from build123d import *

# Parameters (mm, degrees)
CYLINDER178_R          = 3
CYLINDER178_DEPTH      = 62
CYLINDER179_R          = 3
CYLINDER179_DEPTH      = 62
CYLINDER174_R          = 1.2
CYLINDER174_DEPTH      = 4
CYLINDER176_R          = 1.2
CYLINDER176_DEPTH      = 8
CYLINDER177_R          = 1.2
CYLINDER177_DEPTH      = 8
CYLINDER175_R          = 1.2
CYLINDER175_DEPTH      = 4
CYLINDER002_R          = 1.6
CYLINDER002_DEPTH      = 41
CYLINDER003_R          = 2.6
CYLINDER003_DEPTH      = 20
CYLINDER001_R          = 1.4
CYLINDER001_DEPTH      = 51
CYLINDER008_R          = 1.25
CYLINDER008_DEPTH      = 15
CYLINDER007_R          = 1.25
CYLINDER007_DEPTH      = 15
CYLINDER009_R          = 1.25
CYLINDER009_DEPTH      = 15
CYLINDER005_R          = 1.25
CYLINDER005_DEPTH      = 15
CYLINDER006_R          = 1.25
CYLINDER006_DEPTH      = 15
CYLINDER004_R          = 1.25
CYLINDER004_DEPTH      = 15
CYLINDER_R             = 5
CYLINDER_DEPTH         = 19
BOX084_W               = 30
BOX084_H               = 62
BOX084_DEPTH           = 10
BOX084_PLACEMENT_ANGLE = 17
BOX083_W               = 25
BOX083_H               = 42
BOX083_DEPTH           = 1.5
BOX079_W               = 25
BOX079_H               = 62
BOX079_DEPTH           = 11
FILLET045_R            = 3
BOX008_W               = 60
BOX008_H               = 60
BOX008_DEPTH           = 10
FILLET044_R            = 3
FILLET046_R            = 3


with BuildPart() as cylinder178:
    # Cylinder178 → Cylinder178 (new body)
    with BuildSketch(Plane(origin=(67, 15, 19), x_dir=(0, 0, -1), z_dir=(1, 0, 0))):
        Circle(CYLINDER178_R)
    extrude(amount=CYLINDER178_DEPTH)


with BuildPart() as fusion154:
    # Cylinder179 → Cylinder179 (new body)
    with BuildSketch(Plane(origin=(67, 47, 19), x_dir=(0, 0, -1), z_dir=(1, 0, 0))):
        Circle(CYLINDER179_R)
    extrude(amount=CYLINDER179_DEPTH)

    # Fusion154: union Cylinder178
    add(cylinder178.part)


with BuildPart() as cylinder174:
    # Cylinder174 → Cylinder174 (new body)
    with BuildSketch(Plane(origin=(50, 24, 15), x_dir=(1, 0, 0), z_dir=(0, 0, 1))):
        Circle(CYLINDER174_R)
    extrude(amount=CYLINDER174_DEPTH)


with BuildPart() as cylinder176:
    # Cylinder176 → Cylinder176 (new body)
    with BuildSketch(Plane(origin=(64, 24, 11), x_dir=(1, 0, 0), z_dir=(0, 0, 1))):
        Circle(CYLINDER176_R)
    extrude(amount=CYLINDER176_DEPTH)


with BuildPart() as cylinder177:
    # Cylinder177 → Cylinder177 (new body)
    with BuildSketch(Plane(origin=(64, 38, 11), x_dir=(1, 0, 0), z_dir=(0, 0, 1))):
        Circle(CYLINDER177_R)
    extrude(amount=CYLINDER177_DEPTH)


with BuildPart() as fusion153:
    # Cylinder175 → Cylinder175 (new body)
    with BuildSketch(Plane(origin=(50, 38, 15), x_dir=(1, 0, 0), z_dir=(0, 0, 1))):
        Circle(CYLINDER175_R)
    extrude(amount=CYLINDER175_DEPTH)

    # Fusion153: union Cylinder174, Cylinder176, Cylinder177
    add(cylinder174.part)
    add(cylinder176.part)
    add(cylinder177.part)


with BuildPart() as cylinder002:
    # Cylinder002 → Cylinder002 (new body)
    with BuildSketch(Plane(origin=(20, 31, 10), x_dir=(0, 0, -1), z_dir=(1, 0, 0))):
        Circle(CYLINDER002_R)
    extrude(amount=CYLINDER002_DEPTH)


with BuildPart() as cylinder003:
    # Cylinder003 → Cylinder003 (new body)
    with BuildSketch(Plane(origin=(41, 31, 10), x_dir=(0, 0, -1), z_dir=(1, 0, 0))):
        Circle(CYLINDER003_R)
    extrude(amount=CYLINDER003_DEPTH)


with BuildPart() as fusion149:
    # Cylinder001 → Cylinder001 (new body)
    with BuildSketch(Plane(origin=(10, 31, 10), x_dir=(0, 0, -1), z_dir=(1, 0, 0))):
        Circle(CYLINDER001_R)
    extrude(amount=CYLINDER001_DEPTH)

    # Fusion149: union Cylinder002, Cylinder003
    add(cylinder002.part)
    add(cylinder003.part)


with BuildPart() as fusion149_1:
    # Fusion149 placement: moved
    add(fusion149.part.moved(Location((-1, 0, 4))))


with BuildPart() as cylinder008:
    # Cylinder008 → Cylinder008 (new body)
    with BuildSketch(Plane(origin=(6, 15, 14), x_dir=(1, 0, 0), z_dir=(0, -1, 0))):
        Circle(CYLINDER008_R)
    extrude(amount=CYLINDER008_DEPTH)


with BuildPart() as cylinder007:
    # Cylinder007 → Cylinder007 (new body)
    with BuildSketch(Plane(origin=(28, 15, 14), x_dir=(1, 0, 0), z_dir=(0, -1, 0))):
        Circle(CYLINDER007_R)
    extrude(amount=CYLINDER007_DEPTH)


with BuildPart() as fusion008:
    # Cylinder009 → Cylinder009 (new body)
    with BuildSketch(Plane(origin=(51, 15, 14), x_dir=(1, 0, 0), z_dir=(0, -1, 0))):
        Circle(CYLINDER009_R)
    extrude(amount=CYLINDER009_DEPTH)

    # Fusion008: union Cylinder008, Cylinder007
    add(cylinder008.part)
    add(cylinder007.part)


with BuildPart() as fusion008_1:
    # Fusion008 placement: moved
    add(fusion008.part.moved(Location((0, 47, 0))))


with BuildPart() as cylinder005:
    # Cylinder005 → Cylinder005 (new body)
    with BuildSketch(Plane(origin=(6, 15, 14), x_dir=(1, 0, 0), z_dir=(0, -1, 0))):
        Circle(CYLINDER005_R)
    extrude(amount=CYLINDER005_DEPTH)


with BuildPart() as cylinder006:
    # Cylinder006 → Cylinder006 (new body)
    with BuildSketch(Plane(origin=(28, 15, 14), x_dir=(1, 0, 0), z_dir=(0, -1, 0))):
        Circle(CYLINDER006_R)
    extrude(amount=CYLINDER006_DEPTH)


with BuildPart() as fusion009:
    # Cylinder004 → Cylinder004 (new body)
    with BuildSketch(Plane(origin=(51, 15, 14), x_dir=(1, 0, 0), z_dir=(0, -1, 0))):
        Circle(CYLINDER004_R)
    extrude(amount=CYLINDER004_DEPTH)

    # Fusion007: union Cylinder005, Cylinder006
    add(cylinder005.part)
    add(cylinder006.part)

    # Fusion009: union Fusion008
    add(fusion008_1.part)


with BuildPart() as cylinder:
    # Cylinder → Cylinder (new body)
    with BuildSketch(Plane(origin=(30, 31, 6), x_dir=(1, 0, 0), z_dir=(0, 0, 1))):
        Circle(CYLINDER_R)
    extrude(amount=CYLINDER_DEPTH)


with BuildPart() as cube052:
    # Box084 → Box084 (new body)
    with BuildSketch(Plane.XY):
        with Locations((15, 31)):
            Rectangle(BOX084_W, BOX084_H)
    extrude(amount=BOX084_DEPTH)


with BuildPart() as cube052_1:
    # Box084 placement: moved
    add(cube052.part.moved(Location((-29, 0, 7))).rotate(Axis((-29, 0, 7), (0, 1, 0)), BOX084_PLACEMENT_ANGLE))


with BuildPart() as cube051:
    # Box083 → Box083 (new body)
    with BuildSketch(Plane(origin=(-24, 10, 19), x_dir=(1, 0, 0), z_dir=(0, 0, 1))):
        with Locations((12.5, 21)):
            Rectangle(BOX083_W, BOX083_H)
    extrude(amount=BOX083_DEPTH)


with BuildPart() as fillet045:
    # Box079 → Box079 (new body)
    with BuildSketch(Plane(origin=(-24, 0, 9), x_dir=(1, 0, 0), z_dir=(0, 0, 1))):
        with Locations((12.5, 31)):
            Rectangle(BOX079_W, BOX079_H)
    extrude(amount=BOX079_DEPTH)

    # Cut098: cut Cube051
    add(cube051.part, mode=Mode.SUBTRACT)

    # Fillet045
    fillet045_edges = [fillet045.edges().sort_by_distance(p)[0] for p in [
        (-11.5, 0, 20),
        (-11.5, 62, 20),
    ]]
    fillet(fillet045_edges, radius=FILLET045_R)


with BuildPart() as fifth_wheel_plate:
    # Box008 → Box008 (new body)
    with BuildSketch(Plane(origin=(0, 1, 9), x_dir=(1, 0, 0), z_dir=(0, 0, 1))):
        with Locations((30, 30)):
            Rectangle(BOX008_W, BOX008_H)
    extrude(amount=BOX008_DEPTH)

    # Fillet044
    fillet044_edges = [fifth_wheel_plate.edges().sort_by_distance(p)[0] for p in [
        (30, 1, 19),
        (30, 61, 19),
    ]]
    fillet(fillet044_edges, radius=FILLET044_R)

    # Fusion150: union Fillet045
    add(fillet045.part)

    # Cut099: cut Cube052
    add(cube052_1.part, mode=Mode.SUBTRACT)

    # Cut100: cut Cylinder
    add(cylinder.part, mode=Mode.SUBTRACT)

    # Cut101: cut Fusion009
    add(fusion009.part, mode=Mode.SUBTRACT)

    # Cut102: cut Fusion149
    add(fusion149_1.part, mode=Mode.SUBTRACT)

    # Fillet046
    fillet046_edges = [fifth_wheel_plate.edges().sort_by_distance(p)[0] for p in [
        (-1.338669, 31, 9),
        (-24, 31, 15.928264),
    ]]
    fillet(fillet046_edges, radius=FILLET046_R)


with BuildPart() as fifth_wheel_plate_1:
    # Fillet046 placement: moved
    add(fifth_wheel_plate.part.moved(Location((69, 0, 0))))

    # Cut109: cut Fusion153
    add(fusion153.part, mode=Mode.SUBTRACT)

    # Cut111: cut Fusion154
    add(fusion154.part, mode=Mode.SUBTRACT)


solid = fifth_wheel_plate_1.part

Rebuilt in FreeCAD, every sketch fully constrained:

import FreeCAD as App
import Part
import Sketcher

V = App.Vector
Q = App.Units.Quantity


def edges_at(feature, points):
    """Names of the edges that pass closest to the given points."""
    edges = feature.Shape.Edges
    near = lambda p: min(range(len(edges)), key=lambda i: edges[i].distToShape(Part.Vertex(*p))[0])
    return sorted({f"Edge{near(p) + 1}" for p in points})


def add_polygon(sketch, points):
    """Adds a closed chain of lines whose ends are joined by coincident constraints."""
    first, n = sketch.GeometryCount, len(points)
    for a, b in zip(points, points[1:] + points[:1]):
        sketch.addGeometry(Part.LineSegment(App.Vector(*a, 0), App.Vector(*b, 0)), False)
    for i in range(n):
        sketch.addConstraint(Sketcher.Constraint("Coincident", first + i, 2, first + (i + 1) % n, 1))

doc = App.newDocument("Part")
body = doc.addObject("PartDesign::Body", "Body")

# Sketch on YZ plane
sketch1 = body.newObject("Sketcher::SketchObject", "Sketch")
sketch1.AttachmentSupport = (doc.getObject("YZ_Plane"), [""])
sketch1.MapMode = "FlatFace"
sketch1.AttachmentOffset = App.Placement(V(0, 0, 67), App.Rotation())
sketch1.addGeometry(Part.Circle(V(15, 19, 0), V(0, 0, 1), 3), False)
sketch1.addConstraint([
    Sketcher.Constraint("Diameter", 0, Q("6 mm")),
    Sketcher.Constraint("DistanceX", -1, 1, 0, 3, Q("15 mm")),
    Sketcher.Constraint("DistanceY", -1, 1, 0, 3, Q("19 mm")),
])
pad1 = body.newObject("PartDesign::Pad", "Pad")
pad1.Profile = sketch1
pad1.Length = 62
body2 = doc.addObject("PartDesign::Body", "Body001")
body2.AllowCompound = True

# Sketch on YZ plane
sketch2 = body2.newObject("Sketcher::SketchObject", "Sketch001")
sketch2.AttachmentSupport = (doc.getObject("YZ_Plane001"), [""])
sketch2.MapMode = "FlatFace"
sketch2.AttachmentOffset = App.Placement(V(0, 0, 67), App.Rotation())
sketch2.addGeometry(Part.Circle(V(47, 19, 0), V(0, 0, 1), 3), False)
sketch2.addConstraint([
    Sketcher.Constraint("Diameter", 0, Q("6 mm")),
    Sketcher.Constraint("DistanceX", -1, 1, 0, 3, Q("47 mm")),
    Sketcher.Constraint("DistanceY", -1, 1, 0, 3, Q("19 mm")),
])
pad2 = body2.newObject("PartDesign::Pad", "Pad001")
pad2.Profile = sketch2
pad2.Length = 62
doc.recompute()

boolean = body2.newObject("PartDesign::Boolean", "Boolean")
boolean.Type = "Fuse"
boolean.addObjects([body])
body3 = doc.addObject("PartDesign::Body", "Body002")

# Sketch on XY plane
sketch3 = body3.newObject("Sketcher::SketchObject", "Sketch002")
sketch3.AttachmentSupport = (doc.getObject("XY_Plane002"), [""])
sketch3.MapMode = "FlatFace"
sketch3.AttachmentOffset = App.Placement(V(0, 0, 15), App.Rotation())
sketch3.addGeometry(Part.Circle(V(50, 24, 0), V(0, 0, 1), 1.2), False)
sketch3.addConstraint([
    Sketcher.Constraint("Diameter", 0, Q("2.4 mm")),
    Sketcher.Constraint("DistanceX", -1, 1, 0, 3, Q("50 mm")),
    Sketcher.Constraint("DistanceY", -1, 1, 0, 3, Q("24 mm")),
])
pad3 = body3.newObject("PartDesign::Pad", "Pad002")
pad3.Profile = sketch3
pad3.Length = 4
body4 = doc.addObject("PartDesign::Body", "Body003")

# Sketch on XY plane
sketch4 = body4.newObject("Sketcher::SketchObject", "Sketch003")
sketch4.AttachmentSupport = (doc.getObject("XY_Plane003"), [""])
sketch4.MapMode = "FlatFace"
sketch4.AttachmentOffset = App.Placement(V(0, 0, 11), App.Rotation())
sketch4.addGeometry(Part.Circle(V(64, 24, 0), V(0, 0, 1), 1.2), False)
sketch4.addConstraint([
    Sketcher.Constraint("Diameter", 0, Q("2.4 mm")),
    Sketcher.Constraint("DistanceX", -1, 1, 0, 3, Q("64 mm")),
    Sketcher.Constraint("DistanceY", -1, 1, 0, 3, Q("24 mm")),
])
pad4 = body4.newObject("PartDesign::Pad", "Pad003")
pad4.Profile = sketch4
pad4.Length = 8
body5 = doc.addObject("PartDesign::Body", "Body004")

# Sketch on XY plane
sketch5 = body5.newObject("Sketcher::SketchObject", "Sketch004")
sketch5.AttachmentSupport = (doc.getObject("XY_Plane004"), [""])
sketch5.MapMode = "FlatFace"
sketch5.AttachmentOffset = App.Placement(V(0, 0, 11), App.Rotation())
sketch5.addGeometry(Part.Circle(V(64, 38, 0), V(0, 0, 1), 1.2), False)
sketch5.addConstraint([
    Sketcher.Constraint("Diameter", 0, Q("2.4 mm")),
    Sketcher.Constraint("DistanceX", -1, 1, 0, 3, Q("64 mm")),
    Sketcher.Constraint("DistanceY", -1, 1, 0, 3, Q("38 mm")),
])
pad5 = body5.newObject("PartDesign::Pad", "Pad004")
pad5.Profile = sketch5
pad5.Length = 8
body6 = doc.addObject("PartDesign::Body", "Body005")
body6.AllowCompound = True

# Sketch on XY plane
sketch6 = body6.newObject("Sketcher::SketchObject", "Sketch005")
sketch6.AttachmentSupport = (doc.getObject("XY_Plane005"), [""])
sketch6.MapMode = "FlatFace"
sketch6.AttachmentOffset = App.Placement(V(0, 0, 15), App.Rotation())
sketch6.addGeometry(Part.Circle(V(50, 38, 0), V(0, 0, 1), 1.2), False)
sketch6.addConstraint([
    Sketcher.Constraint("Diameter", 0, Q("2.4 mm")),
    Sketcher.Constraint("DistanceX", -1, 1, 0, 3, Q("50 mm")),
    Sketcher.Constraint("DistanceY", -1, 1, 0, 3, Q("38 mm")),
])
pad6 = body6.newObject("PartDesign::Pad", "Pad005")
pad6.Profile = sketch6
pad6.Length = 4
doc.recompute()

boolean2 = body6.newObject("PartDesign::Boolean", "Boolean001")
boolean2.Type = "Fuse"
boolean2.addObjects([body3])
doc.recompute()

boolean3 = body6.newObject("PartDesign::Boolean", "Boolean002")
boolean3.Type = "Fuse"
boolean3.addObjects([body4])
doc.recompute()

boolean4 = body6.newObject("PartDesign::Boolean", "Boolean003")
boolean4.Type = "Fuse"
boolean4.addObjects([body5])
body7 = doc.addObject("PartDesign::Body", "Body006")

# Sketch on YZ plane
sketch7 = body7.newObject("Sketcher::SketchObject", "Sketch006")
sketch7.AttachmentSupport = (doc.getObject("YZ_Plane006"), [""])
sketch7.MapMode = "FlatFace"
sketch7.AttachmentOffset = App.Placement(V(0, 0, 20), App.Rotation())
sketch7.addGeometry(Part.Circle(V(31, 10, 0), V(0, 0, 1), 1.6), False)
sketch7.addConstraint([
    Sketcher.Constraint("Diameter", 0, Q("3.2 mm")),
    Sketcher.Constraint("DistanceX", -1, 1, 0, 3, Q("31 mm")),
    Sketcher.Constraint("DistanceY", -1, 1, 0, 3, Q("10 mm")),
])
pad7 = body7.newObject("PartDesign::Pad", "Pad006")
pad7.Profile = sketch7
pad7.Length = 41
body8 = doc.addObject("PartDesign::Body", "Body007")

# Sketch on YZ plane
sketch8 = body8.newObject("Sketcher::SketchObject", "Sketch007")
sketch8.AttachmentSupport = (doc.getObject("YZ_Plane007"), [""])
sketch8.MapMode = "FlatFace"
sketch8.AttachmentOffset = App.Placement(V(0, 0, 41), App.Rotation())
sketch8.addGeometry(Part.Circle(V(31, 10, 0), V(0, 0, 1), 2.6), False)
sketch8.addConstraint([
    Sketcher.Constraint("Diameter", 0, Q("5.2 mm")),
    Sketcher.Constraint("DistanceX", -1, 1, 0, 3, Q("31 mm")),
    Sketcher.Constraint("DistanceY", -1, 1, 0, 3, Q("10 mm")),
])
pad8 = body8.newObject("PartDesign::Pad", "Pad007")
pad8.Profile = sketch8
pad8.Length = 20
body9 = doc.addObject("PartDesign::Body", "Body008")

# Sketch on YZ plane
sketch9 = body9.newObject("Sketcher::SketchObject", "Sketch008")
sketch9.AttachmentSupport = (doc.getObject("YZ_Plane008"), [""])
sketch9.MapMode = "FlatFace"
sketch9.AttachmentOffset = App.Placement(V(0, 0, 10), App.Rotation())
sketch9.addGeometry(Part.Circle(V(31, 10, 0), V(0, 0, 1), 1.4), False)
sketch9.addConstraint([
    Sketcher.Constraint("Diameter", 0, Q("2.8 mm")),
    Sketcher.Constraint("DistanceX", -1, 1, 0, 3, Q("31 mm")),
    Sketcher.Constraint("DistanceY", -1, 1, 0, 3, Q("10 mm")),
])
pad9 = body9.newObject("PartDesign::Pad", "Pad008")
pad9.Profile = sketch9
pad9.Length = 51
doc.recompute()

boolean5 = body9.newObject("PartDesign::Boolean", "Boolean004")
boolean5.Type = "Fuse"
boolean5.addObjects([body7])
doc.recompute()

boolean6 = body9.newObject("PartDesign::Boolean", "Boolean005")
boolean6.Type = "Fuse"
boolean6.addObjects([body8])
body10 = doc.addObject("PartDesign::Body", "Body009")
doc.recompute()

body9.Placement = App.Placement(V(-1, 0, 4), App.Rotation(V(0, 0, 1), 0))
boolean7 = body10.newObject("PartDesign::Boolean", "Boolean006")
boolean7.Type = "Fuse"
boolean7.addObjects([body9])
body11 = doc.addObject("PartDesign::Body", "Body010")

# Sketch on XZ plane
sketch10 = body11.newObject("Sketcher::SketchObject", "Sketch009")
sketch10.AttachmentSupport = (doc.getObject("XZ_Plane010"), [""])
sketch10.MapMode = "FlatFace"
sketch10.AttachmentOffset = App.Placement(V(0, 0, -15), App.Rotation())
sketch10.addGeometry(Part.Circle(V(6, 14, 0), V(0, 0, 1), 1.2), False)
sketch10.addConstraint([
    Sketcher.Constraint("Diameter", 0, Q("2.5 mm")),
    Sketcher.Constraint("DistanceX", -1, 1, 0, 3, Q("6 mm")),
    Sketcher.Constraint("DistanceY", -1, 1, 0, 3, Q("14 mm")),
])
pad10 = body11.newObject("PartDesign::Pad", "Pad009")
pad10.Profile = sketch10
pad10.Length = 15
body12 = doc.addObject("PartDesign::Body", "Body011")

# Sketch on XZ plane
sketch11 = body12.newObject("Sketcher::SketchObject", "Sketch010")
sketch11.AttachmentSupport = (doc.getObject("XZ_Plane011"), [""])
sketch11.MapMode = "FlatFace"
sketch11.AttachmentOffset = App.Placement(V(0, 0, -15), App.Rotation())
sketch11.addGeometry(Part.Circle(V(28, 14, 0), V(0, 0, 1), 1.2), False)
sketch11.addConstraint([
    Sketcher.Constraint("Diameter", 0, Q("2.5 mm")),
    Sketcher.Constraint("DistanceX", -1, 1, 0, 3, Q("28 mm")),
    Sketcher.Constraint("DistanceY", -1, 1, 0, 3, Q("14 mm")),
])
pad11 = body12.newObject("PartDesign::Pad", "Pad010")
pad11.Profile = sketch11
pad11.Length = 15
body13 = doc.addObject("PartDesign::Body", "Body012")
body13.AllowCompound = True

# Sketch on XZ plane
sketch12 = body13.newObject("Sketcher::SketchObject", "Sketch011")
sketch12.AttachmentSupport = (doc.getObject("XZ_Plane012"), [""])
sketch12.MapMode = "FlatFace"
sketch12.AttachmentOffset = App.Placement(V(0, 0, -15), App.Rotation())
sketch12.addGeometry(Part.Circle(V(51, 14, 0), V(0, 0, 1), 1.2), False)
sketch12.addConstraint([
    Sketcher.Constraint("Diameter", 0, Q("2.5 mm")),
    Sketcher.Constraint("DistanceX", -1, 1, 0, 3, Q("51 mm")),
    Sketcher.Constraint("DistanceY", -1, 1, 0, 3, Q("14 mm")),
])
pad12 = body13.newObject("PartDesign::Pad", "Pad011")
pad12.Profile = sketch12
pad12.Length = 15
doc.recompute()

boolean8 = body13.newObject("PartDesign::Boolean", "Boolean007")
boolean8.Type = "Fuse"
boolean8.addObjects([body11])
doc.recompute()

boolean9 = body13.newObject("PartDesign::Boolean", "Boolean008")
boolean9.Type = "Fuse"
boolean9.addObjects([body12])
body14 = doc.addObject("PartDesign::Body", "Body013")
body14.AllowCompound = True
doc.recompute()

body13.Placement = App.Placement(V(0, 47, 0), App.Rotation(V(0, 0, 1), 0))
boolean10 = body14.newObject("PartDesign::Boolean", "Boolean009")
boolean10.Type = "Fuse"
boolean10.addObjects([body13])
body15 = doc.addObject("PartDesign::Body", "Body014")

# Sketch on XZ plane
sketch13 = body15.newObject("Sketcher::SketchObject", "Sketch012")
sketch13.AttachmentSupport = (doc.getObject("XZ_Plane014"), [""])
sketch13.MapMode = "FlatFace"
sketch13.AttachmentOffset = App.Placement(V(0, 0, -15), App.Rotation())
sketch13.addGeometry(Part.Circle(V(6, 14, 0), V(0, 0, 1), 1.2), False)
sketch13.addConstraint([
    Sketcher.Constraint("Diameter", 0, Q("2.5 mm")),
    Sketcher.Constraint("DistanceX", -1, 1, 0, 3, Q("6 mm")),
    Sketcher.Constraint("DistanceY", -1, 1, 0, 3, Q("14 mm")),
])
pad13 = body15.newObject("PartDesign::Pad", "Pad012")
pad13.Profile = sketch13
pad13.Length = 15
body16 = doc.addObject("PartDesign::Body", "Body015")

# Sketch on XZ plane
sketch14 = body16.newObject("Sketcher::SketchObject", "Sketch013")
sketch14.AttachmentSupport = (doc.getObject("XZ_Plane015"), [""])
sketch14.MapMode = "FlatFace"
sketch14.AttachmentOffset = App.Placement(V(0, 0, -15), App.Rotation())
sketch14.addGeometry(Part.Circle(V(28, 14, 0), V(0, 0, 1), 1.2), False)
sketch14.addConstraint([
    Sketcher.Constraint("Diameter", 0, Q("2.5 mm")),
    Sketcher.Constraint("DistanceX", -1, 1, 0, 3, Q("28 mm")),
    Sketcher.Constraint("DistanceY", -1, 1, 0, 3, Q("14 mm")),
])
pad14 = body16.newObject("PartDesign::Pad", "Pad013")
pad14.Profile = sketch14
pad14.Length = 15
body17 = doc.addObject("PartDesign::Body", "Body016")
body17.AllowCompound = True

# Sketch on XZ plane
sketch15 = body17.newObject("Sketcher::SketchObject", "Sketch014")
sketch15.AttachmentSupport = (doc.getObject("XZ_Plane016"), [""])
sketch15.MapMode = "FlatFace"
sketch15.AttachmentOffset = App.Placement(V(0, 0, -15), App.Rotation())
sketch15.addGeometry(Part.Circle(V(51, 14, 0), V(0, 0, 1), 1.2), False)
sketch15.addConstraint([
    Sketcher.Constraint("Diameter", 0, Q("2.5 mm")),
    Sketcher.Constraint("DistanceX", -1, 1, 0, 3, Q("51 mm")),
    Sketcher.Constraint("DistanceY", -1, 1, 0, 3, Q("14 mm")),
])
pad15 = body17.newObject("PartDesign::Pad", "Pad014")
pad15.Profile = sketch15
pad15.Length = 15
doc.recompute()

boolean11 = body17.newObject("PartDesign::Boolean", "Boolean010")
boolean11.Type = "Fuse"
boolean11.addObjects([body15])
doc.recompute()

boolean12 = body17.newObject("PartDesign::Boolean", "Boolean011")
boolean12.Type = "Fuse"
boolean12.addObjects([body16])
doc.recompute()

boolean13 = body17.newObject("PartDesign::Boolean", "Boolean012")
boolean13.Type = "Fuse"
boolean13.addObjects([body14])
body18 = doc.addObject("PartDesign::Body", "Body017")

# Sketch on XY plane
sketch16 = body18.newObject("Sketcher::SketchObject", "Sketch015")
sketch16.AttachmentSupport = (doc.getObject("XY_Plane017"), [""])
sketch16.MapMode = "FlatFace"
sketch16.AttachmentOffset = App.Placement(V(0, 0, 6), App.Rotation())
sketch16.addGeometry(Part.Circle(V(30, 31, 0), V(0, 0, 1), 5), False)
sketch16.addConstraint([
    Sketcher.Constraint("Diameter", 0, Q("10 mm")),
    Sketcher.Constraint("DistanceX", -1, 1, 0, 3, Q("30 mm")),
    Sketcher.Constraint("DistanceY", -1, 1, 0, 3, Q("31 mm")),
])
pad16 = body18.newObject("PartDesign::Pad", "Pad015")
pad16.Profile = sketch16
pad16.Length = 19
body19 = doc.addObject("PartDesign::Body", "Body018")

# Sketch on XY plane
sketch17 = body19.newObject("Sketcher::SketchObject", "Sketch016")
sketch17.AttachmentSupport = (doc.getObject("XY_Plane018"), [""])
sketch17.MapMode = "FlatFace"
add_polygon(sketch17, [(0, 62), (0, 0), (30, 0), (30, 62)])  # lines 0-3
sketch17.addConstraint([
    Sketcher.Constraint("Vertical", 0),
    Sketcher.Constraint("Horizontal", 1),
    Sketcher.Constraint("Vertical", 2),
    Sketcher.Constraint("Horizontal", 3),
    Sketcher.Constraint("Coincident", 0, 2, -1, 1),
    Sketcher.Constraint("DistanceX", 1, 1, 1, 2, Q("30 mm")),
    Sketcher.Constraint("DistanceY", 0, 2, 0, 1, Q("62 mm")),
])
pad17 = body19.newObject("PartDesign::Pad", "Pad016")
pad17.Profile = sketch17
pad17.Length = 10
body20 = doc.addObject("PartDesign::Body", "Body019")
doc.recompute()

body19.Placement = App.Placement(V(-29, 0, 7), App.Rotation(V(0, 1, 0), 17))
boolean14 = body20.newObject("PartDesign::Boolean", "Boolean013")
boolean14.Type = "Fuse"
boolean14.addObjects([body19])
body21 = doc.addObject("PartDesign::Body", "Body020")

# Sketch on XY plane
sketch18 = body21.newObject("Sketcher::SketchObject", "Sketch017")
sketch18.AttachmentSupport = (doc.getObject("XY_Plane020"), [""])
sketch18.MapMode = "FlatFace"
sketch18.AttachmentOffset = App.Placement(V(0, 0, 19), App.Rotation())
add_polygon(sketch18, [(-24, 52), (-24, 10), (1, 10), (1, 52)])  # lines 0-3
sketch18.addConstraint([
    Sketcher.Constraint("Vertical", 0),
    Sketcher.Constraint("Horizontal", 1),
    Sketcher.Constraint("Vertical", 2),
    Sketcher.Constraint("Horizontal", 3),
    Sketcher.Constraint("DistanceX", 1, 1, 1, 2, Q("25 mm")),
    Sketcher.Constraint("DistanceY", 0, 2, 0, 1, Q("42 mm")),
    Sketcher.Constraint("DistanceX", 0, 2, -1, 1, Q("24 mm")),
    Sketcher.Constraint("DistanceY", -1, 1, 0, 2, Q("10 mm")),
])
pad18 = body21.newObject("PartDesign::Pad", "Pad017")
pad18.Profile = sketch18
pad18.Length = 1.5
body22 = doc.addObject("PartDesign::Body", "Body021")

# Sketch on XY plane
sketch19 = body22.newObject("Sketcher::SketchObject", "Sketch018")
sketch19.AttachmentSupport = (doc.getObject("XY_Plane021"), [""])
sketch19.MapMode = "FlatFace"
sketch19.AttachmentOffset = App.Placement(V(0, 0, 9), App.Rotation())
add_polygon(sketch19, [(-24, 62), (-24, 0), (1, 0), (1, 62)])  # lines 0-3
sketch19.addConstraint([
    Sketcher.Constraint("Vertical", 0),
    Sketcher.Constraint("Horizontal", 1),
    Sketcher.Constraint("Vertical", 2),
    Sketcher.Constraint("Horizontal", 3),
    Sketcher.Constraint("PointOnObject", 0, 2, -1),
    Sketcher.Constraint("DistanceX", 1, 1, 1, 2, Q("25 mm")),
    Sketcher.Constraint("DistanceY", 0, 2, 0, 1, Q("62 mm")),
    Sketcher.Constraint("DistanceX", 0, 2, -1, 1, Q("24 mm")),
])
pad19 = body22.newObject("PartDesign::Pad", "Pad018")
pad19.Profile = sketch19
pad19.Length = 11
doc.recompute()

boolean15 = body22.newObject("PartDesign::Boolean", "Boolean014")
boolean15.Type = "Cut"
boolean15.addObjects([body21])
doc.recompute()

fillet = body22.newObject("PartDesign::Fillet", "Fillet")
fillet.Base = (boolean15, edges_at(boolean15, [(-11.5, 0, 20), (-11.5, 62, 20)]))
fillet.Radius = 3
body23 = doc.addObject("PartDesign::Body", "Body022")

# Sketch on XY plane
sketch20 = body23.newObject("Sketcher::SketchObject", "Sketch019")
sketch20.AttachmentSupport = (doc.getObject("XY_Plane022"), [""])
sketch20.MapMode = "FlatFace"
sketch20.AttachmentOffset = App.Placement(V(0, 0, 9), App.Rotation())
add_polygon(sketch20, [(0, 61), (0, 1), (60, 1), (60, 61)])  # lines 0-3
sketch20.addConstraint([
    Sketcher.Constraint("Vertical", 0),
    Sketcher.Constraint("Horizontal", 1),
    Sketcher.Constraint("Vertical", 2),
    Sketcher.Constraint("Horizontal", 3),
    Sketcher.Constraint("PointOnObject", 0, 2, -2),
    Sketcher.Constraint("Equal", 3, 0),
    Sketcher.Constraint("DistanceX", 1, 1, 1, 2, Q("60 mm")),
    Sketcher.Constraint("DistanceY", -1, 1, 0, 2, Q("1 mm")),
])
pad20 = body23.newObject("PartDesign::Pad", "Pad019")
pad20.Profile = sketch20
pad20.Length = 10
doc.recompute()

fillet2 = body23.newObject("PartDesign::Fillet", "Fillet001")
fillet2.Base = (pad20, edges_at(pad20, [(30, 1, 19), (30, 61, 19)]))
fillet2.Radius = 3
doc.recompute()

boolean16 = body23.newObject("PartDesign::Boolean", "Boolean015")
boolean16.Type = "Fuse"
boolean16.addObjects([body22])
doc.recompute()

boolean17 = body23.newObject("PartDesign::Boolean", "Boolean016")
boolean17.Type = "Cut"
boolean17.addObjects([body20])
doc.recompute()

boolean18 = body23.newObject("PartDesign::Boolean", "Boolean017")
boolean18.Type = "Cut"
boolean18.addObjects([body18])
doc.recompute()

boolean19 = body23.newObject("PartDesign::Boolean", "Boolean018")
boolean19.Type = "Cut"
boolean19.addObjects([body17])
doc.recompute()

boolean20 = body23.newObject("PartDesign::Boolean", "Boolean019")
boolean20.Type = "Cut"
boolean20.addObjects([body10])
doc.recompute()

fillet3 = body23.newObject("PartDesign::Fillet", "Fillet002")
fillet3.Base = (boolean20, edges_at(boolean20, [(-1.339, 31, 9), (-24, 31, 15.928)]))
fillet3.Radius = 3
body24 = doc.addObject("PartDesign::Body", "Body023")
doc.recompute()

body23.Placement = App.Placement(V(69, 0, 0), App.Rotation(V(0, 0, 1), 0))
boolean21 = body24.newObject("PartDesign::Boolean", "Boolean020")
boolean21.Type = "Fuse"
boolean21.addObjects([body23])
doc.recompute()

boolean22 = body24.newObject("PartDesign::Boolean", "Boolean021")
boolean22.Type = "Cut"
boolean22.addObjects([body6])
doc.recompute()

boolean23 = body24.newObject("PartDesign::Boolean", "Boolean022")
boolean23.Type = "Cut"
boolean23.addObjects([body2])

doc.recompute()
